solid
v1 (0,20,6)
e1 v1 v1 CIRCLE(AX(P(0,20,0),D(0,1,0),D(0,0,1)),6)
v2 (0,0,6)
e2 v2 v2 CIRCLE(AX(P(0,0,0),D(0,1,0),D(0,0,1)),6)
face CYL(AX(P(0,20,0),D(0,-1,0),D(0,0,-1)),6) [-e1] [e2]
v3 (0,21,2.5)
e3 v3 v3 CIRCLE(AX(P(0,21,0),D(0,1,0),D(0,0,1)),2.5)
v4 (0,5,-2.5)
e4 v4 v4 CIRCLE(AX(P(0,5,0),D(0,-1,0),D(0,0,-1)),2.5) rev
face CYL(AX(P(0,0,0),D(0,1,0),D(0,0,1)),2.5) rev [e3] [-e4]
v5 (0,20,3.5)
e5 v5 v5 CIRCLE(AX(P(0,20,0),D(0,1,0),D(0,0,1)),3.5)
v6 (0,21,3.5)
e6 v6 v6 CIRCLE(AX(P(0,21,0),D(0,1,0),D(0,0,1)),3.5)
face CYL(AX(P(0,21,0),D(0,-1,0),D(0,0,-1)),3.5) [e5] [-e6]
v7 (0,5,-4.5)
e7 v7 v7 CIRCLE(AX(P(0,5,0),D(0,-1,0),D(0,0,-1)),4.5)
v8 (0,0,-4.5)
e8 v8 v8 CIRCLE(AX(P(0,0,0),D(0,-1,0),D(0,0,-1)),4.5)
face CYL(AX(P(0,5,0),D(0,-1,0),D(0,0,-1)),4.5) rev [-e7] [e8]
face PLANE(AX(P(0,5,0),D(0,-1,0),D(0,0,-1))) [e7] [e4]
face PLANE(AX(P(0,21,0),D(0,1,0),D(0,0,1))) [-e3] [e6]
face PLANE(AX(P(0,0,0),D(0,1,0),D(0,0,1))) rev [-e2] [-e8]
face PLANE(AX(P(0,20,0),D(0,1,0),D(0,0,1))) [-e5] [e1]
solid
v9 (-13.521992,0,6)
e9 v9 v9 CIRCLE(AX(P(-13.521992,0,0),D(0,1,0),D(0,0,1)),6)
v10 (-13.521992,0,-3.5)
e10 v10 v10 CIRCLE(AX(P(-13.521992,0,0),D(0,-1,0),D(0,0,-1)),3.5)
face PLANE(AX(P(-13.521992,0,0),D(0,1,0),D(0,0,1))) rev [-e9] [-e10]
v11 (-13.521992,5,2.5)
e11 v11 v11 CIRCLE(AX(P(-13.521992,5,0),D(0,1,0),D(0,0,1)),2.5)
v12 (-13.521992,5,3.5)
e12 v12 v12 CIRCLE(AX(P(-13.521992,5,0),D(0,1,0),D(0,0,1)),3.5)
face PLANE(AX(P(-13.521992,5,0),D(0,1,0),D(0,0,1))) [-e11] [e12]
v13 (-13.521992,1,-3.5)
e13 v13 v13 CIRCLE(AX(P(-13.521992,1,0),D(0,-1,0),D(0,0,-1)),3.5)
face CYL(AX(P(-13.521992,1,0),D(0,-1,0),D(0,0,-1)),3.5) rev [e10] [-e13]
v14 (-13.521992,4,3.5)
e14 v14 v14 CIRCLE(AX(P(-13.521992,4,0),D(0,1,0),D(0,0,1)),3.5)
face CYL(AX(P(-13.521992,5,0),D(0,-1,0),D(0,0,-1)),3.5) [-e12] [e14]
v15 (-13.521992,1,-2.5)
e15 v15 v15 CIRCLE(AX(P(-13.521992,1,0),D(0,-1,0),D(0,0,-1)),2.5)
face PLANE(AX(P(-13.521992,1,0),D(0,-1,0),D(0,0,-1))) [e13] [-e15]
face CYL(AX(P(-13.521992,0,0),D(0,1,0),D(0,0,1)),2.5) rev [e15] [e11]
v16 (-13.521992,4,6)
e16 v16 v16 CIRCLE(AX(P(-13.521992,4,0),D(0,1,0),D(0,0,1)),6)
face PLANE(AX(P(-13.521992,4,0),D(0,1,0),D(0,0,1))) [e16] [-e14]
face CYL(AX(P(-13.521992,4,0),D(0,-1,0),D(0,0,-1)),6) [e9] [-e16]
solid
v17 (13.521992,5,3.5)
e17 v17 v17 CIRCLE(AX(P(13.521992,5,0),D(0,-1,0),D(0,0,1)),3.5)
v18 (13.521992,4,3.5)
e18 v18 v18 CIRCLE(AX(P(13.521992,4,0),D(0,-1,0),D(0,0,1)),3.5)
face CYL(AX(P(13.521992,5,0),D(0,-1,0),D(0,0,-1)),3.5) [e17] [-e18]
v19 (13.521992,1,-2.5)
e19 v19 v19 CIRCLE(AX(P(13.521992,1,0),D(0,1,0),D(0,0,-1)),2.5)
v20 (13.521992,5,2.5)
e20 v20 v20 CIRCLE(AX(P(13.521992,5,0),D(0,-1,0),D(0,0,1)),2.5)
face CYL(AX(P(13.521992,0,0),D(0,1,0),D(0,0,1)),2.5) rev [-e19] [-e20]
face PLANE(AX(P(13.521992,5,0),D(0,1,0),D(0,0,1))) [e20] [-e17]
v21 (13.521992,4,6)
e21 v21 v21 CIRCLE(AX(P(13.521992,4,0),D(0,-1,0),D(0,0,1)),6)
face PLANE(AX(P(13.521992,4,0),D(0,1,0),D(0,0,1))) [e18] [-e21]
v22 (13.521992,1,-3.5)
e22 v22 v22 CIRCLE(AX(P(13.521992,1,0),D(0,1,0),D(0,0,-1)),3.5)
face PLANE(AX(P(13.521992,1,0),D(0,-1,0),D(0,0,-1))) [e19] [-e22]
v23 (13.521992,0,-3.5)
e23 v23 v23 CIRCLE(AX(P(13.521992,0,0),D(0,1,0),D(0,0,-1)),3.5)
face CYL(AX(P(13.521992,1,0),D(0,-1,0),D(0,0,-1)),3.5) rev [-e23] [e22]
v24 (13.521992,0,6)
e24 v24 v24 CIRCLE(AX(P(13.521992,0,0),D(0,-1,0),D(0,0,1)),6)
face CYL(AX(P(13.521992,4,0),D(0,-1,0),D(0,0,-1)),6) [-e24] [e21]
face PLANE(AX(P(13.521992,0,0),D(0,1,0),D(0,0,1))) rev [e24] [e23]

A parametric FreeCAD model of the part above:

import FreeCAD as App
import Part
import Sketcher

V = App.Vector

doc = App.newDocument("Part")
body = doc.addObject("PartDesign::Body", "Body")

# Sketch on XZ plane
sketch1 = doc.addObject("Sketcher::SketchObject", "Sketch")
body.addObject(sketch1)
sketch1.AttachmentSupport = (doc.XZ_Plane, [""])
sketch1.MapMode = "FlatFace"
sketch1.addGeometry(Part.Circle(V(0, 0, 0), V(0, 0, 1), 6), False)
sketch1.addConstraint(Sketcher.Constraint("Coincident", 0, 3, -1, 1))
sketch1.addConstraint(Sketcher.Constraint("Diameter", 0, 12.0))
pad1 = doc.addObject("PartDesign::Pad", "Pad")
body.addObject(pad1)
pad1.Profile = sketch1
pad1.Length = 20
pad1.Reversed = True

# Sketch on XZ plane
sketch2 = doc.addObject("Sketcher::SketchObject", "Sketch001")
body.addObject(sketch2)
sketch2.AttachmentSupport = (doc.XZ_Plane, [""])
sketch2.MapMode = "FlatFace"
sketch2.AttachmentOffset = App.Placement(V(0, 0, -20), App.Rotation())
sketch2.addGeometry(Part.Circle(V(0, 0, 0), V(0, 0, 1), 2.5), False)
sketch2.addConstraint(Sketcher.Constraint("Coincident", 0, 3, -1, 1))
sketch2.addConstraint(Sketcher.Constraint("Diameter", 0, 5.0))
pocket1 = doc.addObject("PartDesign::Pocket", "Pocket")
body.addObject(pocket1)
pocket1.Profile = sketch2
pocket1.Length = 20
pocket1.Reversed = True

# Sketch on XZ plane
sketch3 = doc.addObject("Sketcher::SketchObject", "Sketch002")
body.addObject(sketch3)
sketch3.AttachmentSupport = (doc.XZ_Plane, [""])
sketch3.MapMode = "FlatFace"
sketch3.AttachmentOffset = App.Placement(V(0, 0, -21), App.Rotation())
sketch3.addGeometry(Part.Circle(V(0, 0, 0), V(0, 0, 1), 3.5), False)
sketch3.addGeometry(Part.Circle(V(0, 0, 0), V(0, 0, 1), 2.5), False)
sketch3.addConstraint(Sketcher.Constraint("Coincident", 0, 3, -1, 1))
sketch3.addConstraint(Sketcher.Constraint("Coincident", 1, 3, -1, 1))
sketch3.addConstraint(Sketcher.Constraint("Diameter", 0, 7.0))
sketch3.addConstraint(Sketcher.Constraint("Diameter", 1, 5.0))
pad2 = doc.addObject("PartDesign::Pad", "Pad001")
body.addObject(pad2)
pad2.Profile = sketch3
pad2.Length = 1

# Sketch on XZ plane
sketch4 = doc.addObject("Sketcher::SketchObject", "Sketch003")
body.addObject(sketch4)
sketch4.AttachmentSupport = (doc.XZ_Plane, [""])
sketch4.MapMode = "FlatFace"
sketch4.addGeometry(Part.Circle(V(0, 0, 0), V(0, 0, 1), 4.5), False)
sketch4.addConstraint(Sketcher.Constraint("Coincident", 0, 3, -1, 1))
sketch4.addConstraint(Sketcher.Constraint("Diameter", 0, 9.0))
pocket2 = doc.addObject("PartDesign::Pocket", "Pocket001")
body.addObject(pocket2)
pocket2.Profile = sketch4
pocket2.Length = 5
body2 = doc.addObject("PartDesign::Body", "Body001")

# Sketch on XZ plane
sketch5 = doc.addObject("Sketcher::SketchObject", "Sketch004")
body2.addObject(sketch5)
sketch5.AttachmentSupport = (doc.getObject("XZ_Plane001"), [""])
sketch5.MapMode = "FlatFace"
sketch5.addGeometry(Part.Circle(V(-13.521992, 0, 0), V(0, 0, 1), 6), False)
sketch5.addConstraint(Sketcher.Constraint("PointOnObject", 0, 3, -1))
sketch5.addConstraint(Sketcher.Constraint("Diameter", 0, 12.0))
sketch5.addConstraint(Sketcher.Constraint("DistanceX", 0, 3, -1, 1, 13.521992))
pad3 = doc.addObject("PartDesign::Pad", "Pad002")
body2.addObject(pad3)
pad3.Profile = sketch5
pad3.Length = 4
pad3.Reversed = True

# Sketch on XZ plane
sketch6 = doc.addObject("Sketcher::SketchObject", "Sketch005")
body2.addObject(sketch6)
sketch6.AttachmentSupport = (doc.getObject("XZ_Plane001"), [""])
sketch6.MapMode = "FlatFace"
sketch6.AttachmentOffset = App.Placement(V(0, 0, -4), App.Rotation())
sketch6.addGeometry(Part.Circle(V(-13.521992, 0, 0), V(0, 0, 1), 2.5), False)
sketch6.addConstraint(Sketcher.Constraint("PointOnObject", 0, 3, -1))
sketch6.addConstraint(Sketcher.Constraint("Diameter", 0, 5.0))
sketch6.addConstraint(Sketcher.Constraint("DistanceX", 0, 3, -1, 1, 13.521992))
pocket3 = doc.addObject("PartDesign::Pocket", "Pocket002")
body2.addObject(pocket3)
pocket3.Profile = sketch6
pocket3.Length = 4
pocket3.Reversed = True

# Sketch on XZ plane
sketch7 = doc.addObject("Sketcher::SketchObject", "Sketch006")
body2.addObject(sketch7)
sketch7.AttachmentSupport = (doc.getObject("XZ_Plane001"), [""])
sketch7.MapMode = "FlatFace"
sketch7.AttachmentOffset = App.Placement(V(0, 0, -4), App.Rotation())
sketch7.addGeometry(Part.Circle(V(-13.521992, 0, 0), V(0, 0, 1), 3.5), False)
sketch7.addGeometry(Part.Circle(V(-13.521992, 0, 0), V(0, 0, 1), 2.5), False)
sketch7.addConstraint(Sketcher.Constraint("Coincident", 1, 3, 0, 3))
sketch7.addConstraint(Sketcher.Constraint("PointOnObject", 0, 3, -1))
sketch7.addConstraint(Sketcher.Constraint("Diameter", 0, 7.0))
sketch7.addConstraint(Sketcher.Constraint("Diameter", 1, 5.0))
sketch7.addConstraint(Sketcher.Constraint("DistanceX", 0, 3, -1, 1, 13.521992))
pad4 = doc.addObject("PartDesign::Pad", "Pad003")
body2.addObject(pad4)
pad4.Profile = sketch7
pad4.Length = 1
pad4.Reversed = True

# Sketch on XZ plane
sketch8 = doc.addObject("Sketcher::SketchObject", "Sketch007")
body2.addObject(sketch8)
sketch8.AttachmentSupport = (doc.getObject("XZ_Plane001"), [""])
sketch8.MapMode = "FlatFace"
sketch8.addGeometry(Part.Circle(V(-13.521992, 0, 0), V(0, 0, 1), 3.5), False)
sketch8.addGeometry(Part.Circle(V(-13.521992, 0, 0), V(0, 0, 1), 2.5), False)
sketch8.addConstraint(Sketcher.Constraint("Coincident", 1, 3, 0, 3))
sketch8.addConstraint(Sketcher.Constraint("PointOnObject", 0, 3, -1))
sketch8.addConstraint(Sketcher.Constraint("Diameter", 0, 7.0))
sketch8.addConstraint(Sketcher.Constraint("Diameter", 1, 5.0))
sketch8.addConstraint(Sketcher.Constraint("DistanceX", 0, 3, -1, 1, 13.521992))
pocket4 = doc.addObject("PartDesign::Pocket", "Pocket003")
body2.addObject(pocket4)
pocket4.Profile = sketch8
pocket4.Length = 1
body3 = doc.addObject("PartDesign::Body", "Body002")
doc.recompute()

mirroring = doc.addObject("Part::Mirroring", "Mirroring")
mirroring.Source = body2
mirroring.Base = V(0, 0, 0)
mirroring.Normal = V(1, 0, 0)
body3.BaseFeature = mirroring
doc.recompute()
mirroring.Visibility = False

doc.recompute()
